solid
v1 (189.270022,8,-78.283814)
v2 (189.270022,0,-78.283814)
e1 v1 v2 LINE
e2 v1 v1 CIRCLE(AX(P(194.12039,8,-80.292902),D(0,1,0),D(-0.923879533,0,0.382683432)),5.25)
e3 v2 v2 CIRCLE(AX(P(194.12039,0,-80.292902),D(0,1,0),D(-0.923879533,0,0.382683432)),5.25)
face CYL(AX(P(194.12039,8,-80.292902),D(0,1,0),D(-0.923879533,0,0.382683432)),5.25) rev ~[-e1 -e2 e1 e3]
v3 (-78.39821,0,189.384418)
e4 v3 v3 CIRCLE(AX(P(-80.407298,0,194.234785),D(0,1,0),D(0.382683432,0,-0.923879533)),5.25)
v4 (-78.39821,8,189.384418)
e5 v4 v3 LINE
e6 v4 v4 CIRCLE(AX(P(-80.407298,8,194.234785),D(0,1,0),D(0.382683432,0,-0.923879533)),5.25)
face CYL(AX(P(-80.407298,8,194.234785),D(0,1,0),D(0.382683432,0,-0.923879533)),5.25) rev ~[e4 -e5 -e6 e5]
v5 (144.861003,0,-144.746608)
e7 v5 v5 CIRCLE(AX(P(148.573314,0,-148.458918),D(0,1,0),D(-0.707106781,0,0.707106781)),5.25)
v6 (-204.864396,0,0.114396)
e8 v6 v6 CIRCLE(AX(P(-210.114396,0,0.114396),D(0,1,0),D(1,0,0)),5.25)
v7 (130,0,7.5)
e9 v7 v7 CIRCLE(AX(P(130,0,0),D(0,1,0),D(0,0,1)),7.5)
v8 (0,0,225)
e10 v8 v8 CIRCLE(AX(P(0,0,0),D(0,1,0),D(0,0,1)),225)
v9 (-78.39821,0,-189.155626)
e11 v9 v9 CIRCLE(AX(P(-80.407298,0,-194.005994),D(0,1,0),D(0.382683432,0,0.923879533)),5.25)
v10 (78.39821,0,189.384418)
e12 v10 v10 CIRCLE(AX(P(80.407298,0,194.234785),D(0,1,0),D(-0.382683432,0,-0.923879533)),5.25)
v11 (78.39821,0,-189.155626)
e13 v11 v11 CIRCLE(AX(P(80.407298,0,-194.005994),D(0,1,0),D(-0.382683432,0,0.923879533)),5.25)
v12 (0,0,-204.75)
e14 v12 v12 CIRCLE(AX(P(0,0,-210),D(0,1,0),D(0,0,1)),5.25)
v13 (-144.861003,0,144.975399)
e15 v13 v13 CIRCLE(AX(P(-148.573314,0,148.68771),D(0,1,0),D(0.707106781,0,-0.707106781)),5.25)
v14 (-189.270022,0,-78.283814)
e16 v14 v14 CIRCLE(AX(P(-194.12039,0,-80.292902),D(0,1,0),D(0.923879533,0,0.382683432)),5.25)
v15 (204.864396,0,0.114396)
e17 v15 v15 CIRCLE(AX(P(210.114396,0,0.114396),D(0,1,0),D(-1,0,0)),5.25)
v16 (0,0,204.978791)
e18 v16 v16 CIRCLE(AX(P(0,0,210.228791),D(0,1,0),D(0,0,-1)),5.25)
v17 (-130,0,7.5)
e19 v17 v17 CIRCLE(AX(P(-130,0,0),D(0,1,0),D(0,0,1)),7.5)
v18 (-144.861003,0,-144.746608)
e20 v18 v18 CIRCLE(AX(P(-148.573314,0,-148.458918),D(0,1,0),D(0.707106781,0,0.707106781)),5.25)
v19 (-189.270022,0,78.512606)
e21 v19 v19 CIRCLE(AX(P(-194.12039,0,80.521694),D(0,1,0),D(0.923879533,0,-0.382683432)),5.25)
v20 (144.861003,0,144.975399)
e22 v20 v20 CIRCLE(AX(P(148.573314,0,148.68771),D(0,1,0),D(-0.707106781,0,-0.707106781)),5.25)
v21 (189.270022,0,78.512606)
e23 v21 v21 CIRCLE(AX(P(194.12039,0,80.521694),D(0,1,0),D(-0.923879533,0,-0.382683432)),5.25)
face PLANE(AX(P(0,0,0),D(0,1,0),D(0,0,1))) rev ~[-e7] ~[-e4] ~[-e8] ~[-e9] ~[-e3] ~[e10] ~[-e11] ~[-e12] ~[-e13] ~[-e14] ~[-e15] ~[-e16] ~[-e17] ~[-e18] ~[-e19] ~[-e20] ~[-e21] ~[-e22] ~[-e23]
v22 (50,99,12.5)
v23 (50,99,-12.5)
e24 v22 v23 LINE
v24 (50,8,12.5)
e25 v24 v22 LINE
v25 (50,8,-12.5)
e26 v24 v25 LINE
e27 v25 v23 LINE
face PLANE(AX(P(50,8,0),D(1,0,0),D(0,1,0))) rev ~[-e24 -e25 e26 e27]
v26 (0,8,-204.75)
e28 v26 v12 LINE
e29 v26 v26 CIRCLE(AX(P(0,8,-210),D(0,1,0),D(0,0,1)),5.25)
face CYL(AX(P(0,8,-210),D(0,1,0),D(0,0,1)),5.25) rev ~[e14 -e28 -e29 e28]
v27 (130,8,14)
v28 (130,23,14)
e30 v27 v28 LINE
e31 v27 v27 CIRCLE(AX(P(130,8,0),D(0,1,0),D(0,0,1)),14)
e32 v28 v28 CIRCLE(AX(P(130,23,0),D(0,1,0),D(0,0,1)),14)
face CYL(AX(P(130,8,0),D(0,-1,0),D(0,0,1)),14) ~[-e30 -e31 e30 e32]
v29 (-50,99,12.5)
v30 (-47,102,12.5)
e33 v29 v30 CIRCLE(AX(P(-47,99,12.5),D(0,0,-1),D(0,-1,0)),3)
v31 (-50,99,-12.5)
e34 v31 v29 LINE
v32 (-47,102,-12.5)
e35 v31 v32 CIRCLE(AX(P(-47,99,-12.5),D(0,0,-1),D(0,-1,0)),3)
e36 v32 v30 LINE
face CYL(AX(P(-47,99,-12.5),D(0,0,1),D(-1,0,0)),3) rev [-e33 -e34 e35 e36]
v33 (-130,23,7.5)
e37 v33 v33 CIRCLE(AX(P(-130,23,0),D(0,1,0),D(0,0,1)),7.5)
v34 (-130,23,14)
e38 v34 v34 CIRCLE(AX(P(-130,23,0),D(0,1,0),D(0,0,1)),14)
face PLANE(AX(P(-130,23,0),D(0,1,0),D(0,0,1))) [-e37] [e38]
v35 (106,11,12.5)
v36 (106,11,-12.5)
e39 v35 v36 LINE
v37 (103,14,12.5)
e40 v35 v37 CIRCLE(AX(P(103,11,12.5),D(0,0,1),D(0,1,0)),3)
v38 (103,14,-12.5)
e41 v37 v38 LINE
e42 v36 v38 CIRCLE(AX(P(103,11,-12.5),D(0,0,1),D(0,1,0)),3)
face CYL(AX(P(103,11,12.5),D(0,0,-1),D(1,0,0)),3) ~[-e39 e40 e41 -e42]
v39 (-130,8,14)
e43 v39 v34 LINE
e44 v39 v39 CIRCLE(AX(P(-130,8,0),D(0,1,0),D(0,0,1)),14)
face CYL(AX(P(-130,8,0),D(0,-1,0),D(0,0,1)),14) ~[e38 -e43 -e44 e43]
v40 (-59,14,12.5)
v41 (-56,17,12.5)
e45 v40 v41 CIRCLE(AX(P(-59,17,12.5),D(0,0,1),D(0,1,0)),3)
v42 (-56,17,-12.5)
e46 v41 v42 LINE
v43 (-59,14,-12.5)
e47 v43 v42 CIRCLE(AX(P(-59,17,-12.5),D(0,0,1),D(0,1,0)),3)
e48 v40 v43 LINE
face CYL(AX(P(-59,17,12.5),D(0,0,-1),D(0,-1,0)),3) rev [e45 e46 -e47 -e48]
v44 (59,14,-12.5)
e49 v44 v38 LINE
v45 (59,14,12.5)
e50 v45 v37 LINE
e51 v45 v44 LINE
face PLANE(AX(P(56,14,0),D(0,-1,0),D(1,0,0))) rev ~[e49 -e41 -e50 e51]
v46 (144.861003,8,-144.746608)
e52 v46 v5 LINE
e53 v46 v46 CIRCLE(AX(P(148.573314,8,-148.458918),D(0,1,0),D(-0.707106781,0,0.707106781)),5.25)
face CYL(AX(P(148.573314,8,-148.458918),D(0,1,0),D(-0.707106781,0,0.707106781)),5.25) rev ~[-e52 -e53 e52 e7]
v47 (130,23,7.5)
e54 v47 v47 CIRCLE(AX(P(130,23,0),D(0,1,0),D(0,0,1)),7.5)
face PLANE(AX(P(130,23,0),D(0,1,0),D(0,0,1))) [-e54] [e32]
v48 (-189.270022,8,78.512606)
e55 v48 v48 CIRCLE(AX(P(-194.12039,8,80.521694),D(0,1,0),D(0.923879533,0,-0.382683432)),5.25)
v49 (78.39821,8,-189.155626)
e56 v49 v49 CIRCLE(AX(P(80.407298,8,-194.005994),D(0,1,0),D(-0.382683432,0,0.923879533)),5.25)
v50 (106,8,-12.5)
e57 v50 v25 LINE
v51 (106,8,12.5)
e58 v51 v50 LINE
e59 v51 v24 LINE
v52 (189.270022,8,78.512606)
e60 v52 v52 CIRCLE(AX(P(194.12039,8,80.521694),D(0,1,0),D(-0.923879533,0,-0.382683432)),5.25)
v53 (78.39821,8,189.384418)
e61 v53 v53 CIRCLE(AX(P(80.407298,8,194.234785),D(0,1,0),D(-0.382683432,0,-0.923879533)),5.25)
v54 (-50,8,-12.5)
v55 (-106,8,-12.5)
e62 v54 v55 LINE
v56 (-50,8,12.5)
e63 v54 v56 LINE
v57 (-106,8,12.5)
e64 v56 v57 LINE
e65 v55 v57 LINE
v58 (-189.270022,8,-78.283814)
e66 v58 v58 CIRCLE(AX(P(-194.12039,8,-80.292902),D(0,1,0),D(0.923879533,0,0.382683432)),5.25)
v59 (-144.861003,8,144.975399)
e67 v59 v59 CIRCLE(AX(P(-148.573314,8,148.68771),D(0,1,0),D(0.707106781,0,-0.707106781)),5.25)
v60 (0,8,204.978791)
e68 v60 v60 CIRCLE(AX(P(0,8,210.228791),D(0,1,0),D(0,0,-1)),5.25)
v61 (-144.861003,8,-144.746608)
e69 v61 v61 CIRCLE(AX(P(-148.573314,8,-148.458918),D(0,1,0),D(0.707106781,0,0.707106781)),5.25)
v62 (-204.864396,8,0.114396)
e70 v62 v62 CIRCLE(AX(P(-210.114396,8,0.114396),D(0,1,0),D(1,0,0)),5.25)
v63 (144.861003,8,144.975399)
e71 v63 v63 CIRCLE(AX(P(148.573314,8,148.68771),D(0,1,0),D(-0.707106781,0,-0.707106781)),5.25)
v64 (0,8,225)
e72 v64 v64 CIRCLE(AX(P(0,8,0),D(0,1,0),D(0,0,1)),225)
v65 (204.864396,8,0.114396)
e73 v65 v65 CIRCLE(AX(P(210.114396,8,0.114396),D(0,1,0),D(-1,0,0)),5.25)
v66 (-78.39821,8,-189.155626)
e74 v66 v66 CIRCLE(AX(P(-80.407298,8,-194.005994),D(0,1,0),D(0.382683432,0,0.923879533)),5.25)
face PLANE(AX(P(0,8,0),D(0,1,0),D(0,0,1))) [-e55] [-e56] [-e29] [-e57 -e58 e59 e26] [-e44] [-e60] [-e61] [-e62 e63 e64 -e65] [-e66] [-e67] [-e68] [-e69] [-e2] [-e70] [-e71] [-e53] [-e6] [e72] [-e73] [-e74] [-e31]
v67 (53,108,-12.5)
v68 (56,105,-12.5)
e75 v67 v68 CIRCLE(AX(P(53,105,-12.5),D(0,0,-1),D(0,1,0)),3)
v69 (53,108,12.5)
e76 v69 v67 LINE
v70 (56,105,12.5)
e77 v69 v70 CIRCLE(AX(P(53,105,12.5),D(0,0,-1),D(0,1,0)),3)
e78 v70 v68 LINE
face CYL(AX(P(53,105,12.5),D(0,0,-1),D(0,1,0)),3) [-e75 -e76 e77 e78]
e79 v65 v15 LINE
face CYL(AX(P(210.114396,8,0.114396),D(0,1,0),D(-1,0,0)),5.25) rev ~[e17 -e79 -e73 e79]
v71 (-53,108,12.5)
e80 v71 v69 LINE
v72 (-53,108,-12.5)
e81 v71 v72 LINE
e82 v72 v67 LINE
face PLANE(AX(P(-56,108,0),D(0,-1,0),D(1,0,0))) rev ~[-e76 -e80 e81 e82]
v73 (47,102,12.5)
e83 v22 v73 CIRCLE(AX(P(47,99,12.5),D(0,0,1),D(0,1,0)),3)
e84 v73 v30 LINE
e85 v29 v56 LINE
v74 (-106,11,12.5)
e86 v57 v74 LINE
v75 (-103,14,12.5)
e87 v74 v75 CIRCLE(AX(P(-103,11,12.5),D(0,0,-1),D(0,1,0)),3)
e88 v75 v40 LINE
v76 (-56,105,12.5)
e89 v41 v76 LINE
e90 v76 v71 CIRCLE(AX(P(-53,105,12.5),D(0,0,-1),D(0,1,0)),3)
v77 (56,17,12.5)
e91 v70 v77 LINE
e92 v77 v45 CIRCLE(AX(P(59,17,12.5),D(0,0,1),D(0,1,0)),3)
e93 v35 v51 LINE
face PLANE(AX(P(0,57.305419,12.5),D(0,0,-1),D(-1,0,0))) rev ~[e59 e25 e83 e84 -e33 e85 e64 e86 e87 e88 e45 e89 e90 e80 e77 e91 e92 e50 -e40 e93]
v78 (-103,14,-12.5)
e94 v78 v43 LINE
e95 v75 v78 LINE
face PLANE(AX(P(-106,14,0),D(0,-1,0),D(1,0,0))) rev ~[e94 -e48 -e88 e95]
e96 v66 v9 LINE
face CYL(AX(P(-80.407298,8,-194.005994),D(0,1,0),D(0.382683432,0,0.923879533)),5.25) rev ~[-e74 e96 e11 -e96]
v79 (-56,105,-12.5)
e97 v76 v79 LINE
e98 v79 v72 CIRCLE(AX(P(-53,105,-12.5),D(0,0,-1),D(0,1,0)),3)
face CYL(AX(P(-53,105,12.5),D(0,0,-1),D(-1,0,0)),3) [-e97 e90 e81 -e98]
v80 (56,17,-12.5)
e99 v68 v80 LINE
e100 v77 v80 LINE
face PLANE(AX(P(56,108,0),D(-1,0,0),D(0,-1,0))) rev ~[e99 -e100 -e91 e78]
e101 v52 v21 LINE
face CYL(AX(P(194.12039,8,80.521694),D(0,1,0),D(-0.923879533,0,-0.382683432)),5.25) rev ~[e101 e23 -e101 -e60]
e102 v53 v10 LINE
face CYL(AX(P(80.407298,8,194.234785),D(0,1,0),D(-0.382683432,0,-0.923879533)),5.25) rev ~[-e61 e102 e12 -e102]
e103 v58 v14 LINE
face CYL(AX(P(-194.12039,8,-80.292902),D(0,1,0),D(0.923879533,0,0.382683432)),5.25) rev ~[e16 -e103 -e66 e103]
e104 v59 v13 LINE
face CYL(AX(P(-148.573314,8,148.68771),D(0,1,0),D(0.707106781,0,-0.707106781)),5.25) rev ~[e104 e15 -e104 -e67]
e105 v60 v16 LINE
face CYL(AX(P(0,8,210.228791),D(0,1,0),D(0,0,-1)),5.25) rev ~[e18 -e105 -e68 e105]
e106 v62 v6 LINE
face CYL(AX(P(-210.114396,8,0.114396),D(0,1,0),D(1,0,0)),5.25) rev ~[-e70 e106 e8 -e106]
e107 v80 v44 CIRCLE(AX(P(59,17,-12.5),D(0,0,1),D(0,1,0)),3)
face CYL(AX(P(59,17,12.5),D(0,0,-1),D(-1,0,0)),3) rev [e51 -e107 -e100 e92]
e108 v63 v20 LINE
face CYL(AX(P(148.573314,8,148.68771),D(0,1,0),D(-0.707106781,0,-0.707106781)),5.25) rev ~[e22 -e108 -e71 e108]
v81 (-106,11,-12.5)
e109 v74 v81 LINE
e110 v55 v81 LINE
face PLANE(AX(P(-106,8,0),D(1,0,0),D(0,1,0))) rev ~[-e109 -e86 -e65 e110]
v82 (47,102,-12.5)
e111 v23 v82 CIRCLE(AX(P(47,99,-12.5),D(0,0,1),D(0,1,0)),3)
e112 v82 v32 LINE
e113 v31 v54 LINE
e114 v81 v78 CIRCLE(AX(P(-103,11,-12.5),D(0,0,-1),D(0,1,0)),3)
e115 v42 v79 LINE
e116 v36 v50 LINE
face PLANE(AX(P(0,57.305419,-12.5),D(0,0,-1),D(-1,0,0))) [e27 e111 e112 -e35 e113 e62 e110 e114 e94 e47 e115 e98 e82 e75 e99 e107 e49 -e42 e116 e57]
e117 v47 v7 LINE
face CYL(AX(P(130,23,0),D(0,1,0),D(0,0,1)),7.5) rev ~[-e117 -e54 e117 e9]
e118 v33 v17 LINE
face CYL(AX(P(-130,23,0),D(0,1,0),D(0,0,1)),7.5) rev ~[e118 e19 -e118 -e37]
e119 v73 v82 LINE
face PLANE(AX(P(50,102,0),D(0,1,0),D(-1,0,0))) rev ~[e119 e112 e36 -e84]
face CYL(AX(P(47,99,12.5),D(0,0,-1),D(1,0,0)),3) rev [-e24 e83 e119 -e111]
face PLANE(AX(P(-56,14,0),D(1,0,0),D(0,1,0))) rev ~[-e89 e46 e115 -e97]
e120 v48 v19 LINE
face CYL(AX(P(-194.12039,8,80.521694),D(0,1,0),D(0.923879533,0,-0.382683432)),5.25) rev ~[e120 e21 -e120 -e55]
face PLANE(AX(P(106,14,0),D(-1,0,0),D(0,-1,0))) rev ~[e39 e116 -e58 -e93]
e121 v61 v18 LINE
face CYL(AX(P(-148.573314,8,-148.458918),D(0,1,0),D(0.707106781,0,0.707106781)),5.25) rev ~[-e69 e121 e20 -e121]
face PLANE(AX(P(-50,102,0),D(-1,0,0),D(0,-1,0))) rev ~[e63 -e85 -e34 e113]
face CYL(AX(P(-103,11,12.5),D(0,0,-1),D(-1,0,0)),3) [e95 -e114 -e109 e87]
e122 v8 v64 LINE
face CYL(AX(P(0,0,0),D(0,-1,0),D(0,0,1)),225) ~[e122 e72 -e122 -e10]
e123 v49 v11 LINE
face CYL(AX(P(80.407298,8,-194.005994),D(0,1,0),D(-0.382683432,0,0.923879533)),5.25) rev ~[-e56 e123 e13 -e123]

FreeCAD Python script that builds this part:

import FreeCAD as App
import Part
import Sketcher
Q = App.Units.Quantity


def edges_at(feature, points):
    """Names of the edges that pass closest to the given points."""
    edges = feature.Shape.Edges
    near = lambda p: min(range(len(edges)), key=lambda i: edges[i].distToShape(Part.Vertex(*p))[0])
    return sorted({f"Edge{near(p) + 1}" for p in points})

doc = App.newDocument("Part")
params = doc.addObject("Spreadsheet::Sheet", "Params")
for row, (alias, value) in enumerate([
    ("sketch1_diameter", "450 mm"),
    ("pad1_length", "8 mm"),
    ("sketch2_diameter", "10.5 mm"),
    ("sketch3_diameter", "28 mm"),
    ("pad2_length", "15 mm"),
    ("sketch4_diameter", "15 mm"),
    ("sketch5_diameter", "28 mm"),
    ("pad3_length", "15 mm"),
    ("sketch6_diameter", "15 mm"),
    ("sketch7_width", "56 mm"),
    ("sketch7_width2", "100 mm"),
    ("sketch7_width3", "50 mm"),
    ("sketch7_height", "6 mm"),
    ("sketch7_height2", "94 mm"),
    ("pad4_length", "25 mm"),
    ("fillet_radius", "3 mm"),
], start=1):
    params.set(f"A{row}", alias)
    params.set(f"B{row}", "=" + value)
    params.setAlias(f"B{row}", alias)

body = doc.addObject("PartDesign::Body", "Body")

# Sketch on XZ plane
sketch1 = body.newObject("Sketcher::SketchObject", "Sketch")
sketch1.AttachmentSupport = (doc.getObject("XZ_Plane"), [""])
sketch1.MapMode = "FlatFace"
sketch1.addGeometry(Part.Circle(App.Vector(0, 0, 0), App.Vector(0, 0, 1), 225), False)
sketch1.addConstraint([
    Sketcher.Constraint("Coincident", 0, 3, -1, 1),
    Sketcher.Constraint("Diameter", 0, Q("450 mm")),
])
sketch1.setExpression("Constraints[1]", "Params.sketch1_diameter")
pad1 = body.newObject("PartDesign::Pad", "Pad")
pad1.Profile = sketch1
pad1.setExpression("Length", "Params.pad1_length")
pad1.Reversed = True

# Sketch on XZ plane
sketch2 = body.newObject("Sketcher::SketchObject", "Sketch001")
sketch2.AttachmentSupport = (doc.getObject("XZ_Plane"), [""])
sketch2.MapMode = "FlatFace"
sketch2.AttachmentOffset = App.Placement(App.Vector(0, 0, -8), App.Rotation())
sketch2.addGeometry(Part.Circle(App.Vector(0, -210, 0), App.Vector(0, 0, 1), 5.25), False)
sketch2.addConstraint([
    Sketcher.Constraint("PointOnObject", 0, 3, -2),
    Sketcher.Constraint("Diameter", 0, Q("10.5 mm")),
    Sketcher.Constraint("DistanceY", 0, 3, -1, 1, Q("210 mm")),
])
sketch2.setExpression("Constraints[1]", "Params.sketch2_diameter")
pocket1 = body.newObject("PartDesign::Pocket", "Pocket")
pocket1.Profile = sketch2
pocket1.Type = "ThroughAll"
pocket1.Reversed = True
doc.recompute()

datumline = body.newObject("PartDesign::Line", "DatumLine")
datumline.Placement = App.Placement(App.Vector(0, 0, 0.114396), App.Rotation(App.Vector(0, 0, 1), App.Vector(0, 1, 0)))
polarpattern = body.newObject("PartDesign::PolarPattern", "PolarPattern")
polarpattern.Originals = [pocket1]
polarpattern.Axis = (datumline, [""])
polarpattern.Angle = 360
polarpattern.Occurrences = 16
body.Tip = polarpattern

# Sketch on XZ plane
sketch3 = body.newObject("Sketcher::SketchObject", "Sketch002")
sketch3.AttachmentSupport = (doc.getObject("XZ_Plane"), [""])
sketch3.MapMode = "FlatFace"
sketch3.AttachmentOffset = App.Placement(App.Vector(0, 0, -8), App.Rotation())
sketch3.addGeometry(Part.Circle(App.Vector(-130, 0, 0), App.Vector(0, 0, 1), 14), False)
sketch3.addConstraint([
    Sketcher.Constraint("PointOnObject", 0, 3, -1),
    Sketcher.Constraint("Diameter", 0, Q("28 mm")),
    Sketcher.Constraint("DistanceX", 0, 3, -1, 1, Q("130 mm")),
])
sketch3.setExpression("Constraints[1]", "Params.sketch3_diameter")
pad2 = body.newObject("PartDesign::Pad", "Pad001")
pad2.Profile = sketch3
pad2.setExpression("Length", "Params.pad2_length")
pad2.Reversed = True

# Sketch on XZ plane
sketch4 = body.newObject("Sketcher::SketchObject", "Sketch003")
sketch4.AttachmentSupport = (doc.getObject("XZ_Plane"), [""])
sketch4.MapMode = "FlatFace"
sketch4.AttachmentOffset = App.Placement(App.Vector(0, 0, -23), App.Rotation())
sketch4.addGeometry(Part.Circle(App.Vector(-130, 0, 0), App.Vector(0, 0, 1), 7.5), False)
sketch4.addConstraint([
    Sketcher.Constraint("PointOnObject", 0, 3, -1),
    Sketcher.Constraint("Diameter", 0, Q("15 mm")),
    Sketcher.Constraint("DistanceX", 0, 3, -1, 1, Q("130 mm")),
])
sketch4.setExpression("Constraints[1]", "Params.sketch4_diameter")
pocket2 = body.newObject("PartDesign::Pocket", "Pocket001")
pocket2.Profile = sketch4
pocket2.Type = "ThroughAll"
pocket2.Reversed = True

# Sketch on XZ plane
sketch5 = body.newObject("Sketcher::SketchObject", "Sketch004")
sketch5.AttachmentSupport = (doc.getObject("XZ_Plane"), [""])
sketch5.MapMode = "FlatFace"
sketch5.AttachmentOffset = App.Placement(App.Vector(0, 0, -8), App.Rotation())
sketch5.addGeometry(Part.Circle(App.Vector(130, 0, 0), App.Vector(0, 0, 1), 14), False)
sketch5.addConstraint([
    Sketcher.Constraint("PointOnObject", 0, 3, -1),
    Sketcher.Constraint("Diameter", 0, Q("28 mm")),
    Sketcher.Constraint("DistanceX", -1, 1, 0, 3, Q("130 mm")),
])
sketch5.setExpression("Constraints[1]", "Params.sketch5_diameter")
pad3 = body.newObject("PartDesign::Pad", "Pad002")
pad3.Profile = sketch5
pad3.setExpression("Length", "Params.pad3_length")
pad3.Reversed = True

# Sketch on XZ plane
sketch6 = body.newObject("Sketcher::SketchObject", "Sketch005")
sketch6.AttachmentSupport = (doc.getObject("XZ_Plane"), [""])
sketch6.MapMode = "FlatFace"
sketch6.AttachmentOffset = App.Placement(App.Vector(0, 0, -23), App.Rotation())
sketch6.addGeometry(Part.Circle(App.Vector(130, 0, 0), App.Vector(0, 0, 1), 7.5), False)
sketch6.addConstraint([
    Sketcher.Constraint("PointOnObject", 0, 3, -1),
    Sketcher.Constraint("Diameter", 0, Q("15 mm")),
    Sketcher.Constraint("DistanceX", -1, 1, 0, 3, Q("130 mm")),
])
sketch6.setExpression("Constraints[1]", "Params.sketch6_diameter")
pocket3 = body.newObject("PartDesign::Pocket", "Pocket002")
pocket3.Profile = sketch6
pocket3.Type = "ThroughAll"
pocket3.Reversed = True

# Sketch on XY plane
sketch7 = body.newObject("Sketcher::SketchObject", "Sketch006")
sketch7.AttachmentSupport = (doc.getObject("XY_Plane"), [""])
sketch7.MapMode = "FlatFace"
sketch7.addGeometry([
    Part.LineSegment(App.Vector(-106, 14, 0), App.Vector(-106, 8, 0)),  # 0
    Part.LineSegment(App.Vector(-106, 8, 0), App.Vector(-50, 8, 0)),  # 1
    Part.LineSegment(App.Vector(-50, 8, 0), App.Vector(-50, 102, 0)),  # 2
    Part.LineSegment(App.Vector(-50, 102, 0), App.Vector(50, 102, 0)),  # 3
    Part.LineSegment(App.Vector(50, 102, 0), App.Vector(50, 8, 0)),  # 4
    Part.LineSegment(App.Vector(50, 8, 0), App.Vector(106, 8, 0)),  # 5
    Part.LineSegment(App.Vector(106, 8, 0), App.Vector(106, 14, 0)),  # 6
    Part.LineSegment(App.Vector(106, 14, 0), App.Vector(56, 14, 0)),  # 7
    Part.LineSegment(App.Vector(56, 14, 0), App.Vector(56, 108, 0)),  # 8
    Part.LineSegment(App.Vector(56, 108, 0), App.Vector(-56, 108, 0)),  # 9
    Part.LineSegment(App.Vector(-56, 108, 0), App.Vector(-56, 14, 0)),  # 10
    Part.LineSegment(App.Vector(-56, 14, 0), App.Vector(-106, 14, 0)),  # 11
], False)
sketch7.addConstraint([
    Sketcher.Constraint("Coincident", 0, 2, 1, 1),
    Sketcher.Constraint("Coincident", 1, 2, 2, 1),
    Sketcher.Constraint("Coincident", 2, 2, 3, 1),
    Sketcher.Constraint("Coincident", 3, 2, 4, 1),
    Sketcher.Constraint("Coincident", 4, 2, 5, 1),
    Sketcher.Constraint("Coincident", 5, 2, 6, 1),
    Sketcher.Constraint("Coincident", 6, 2, 7, 1),
    Sketcher.Constraint("Coincident", 7, 2, 8, 1),
    Sketcher.Constraint("Coincident", 8, 2, 9, 1),
    Sketcher.Constraint("Coincident", 9, 2, 10, 1),
    Sketcher.Constraint("Coincident", 10, 2, 11, 1),
    Sketcher.Constraint("Coincident", 11, 2, 0, 1),
    Sketcher.Constraint("Vertical", 0),
    Sketcher.Constraint("Horizontal", 1),
    Sketcher.Constraint("Vertical", 2),
    Sketcher.Constraint("Horizontal", 3),
    Sketcher.Constraint("Vertical", 4),
    Sketcher.Constraint("Horizontal", 5),
    Sketcher.Constraint("Vertical", 6),
    Sketcher.Constraint("Horizontal", 7),
    Sketcher.Constraint("Vertical", 8),
    Sketcher.Constraint("Horizontal", 9),
    Sketcher.Constraint("Vertical", 10),
    Sketcher.Constraint("Horizontal", 11),
    Sketcher.Constraint("Symmetric", 1, 2, 4, 2, -2),
    Sketcher.Constraint("Symmetric", 7, 2, 10, 2, -2),
    Sketcher.Constraint("Equal", 1, 5),
    Sketcher.Constraint("Equal", 4, 8),
    Sketcher.Constraint("DistanceX", 1, 1, 1, 2, Q("56 mm")),
    Sketcher.Constraint("DistanceX", 3, 1, 3, 2, Q("100 mm")),
    Sketcher.Constraint("DistanceX", 7, 2, 7, 1, Q("50 mm")),
    Sketcher.Constraint("DistanceY", 0, 2, 0, 1, Q("6 mm")),
    Sketcher.Constraint("DistanceY", 2, 1, 2, 2, Q("94 mm")),
    Sketcher.Constraint("DistanceY", -1, 1, 0, 2, Q("8 mm")),
])
sketch7.setExpression("Constraints[28]", "Params.sketch7_width")
sketch7.setExpression("Constraints[29]", "Params.sketch7_width2")
sketch7.setExpression("Constraints[30]", "Params.sketch7_width3")
sketch7.setExpression("Constraints[31]", "Params.sketch7_height")
sketch7.setExpression("Constraints[32]", "Params.sketch7_height2")
pad4 = body.newObject("PartDesign::Pad", "Pad003")
pad4.Profile = sketch7
pad4.setExpression("Length", "Params.pad4_length")
pad4.Midplane = True
doc.recompute()

fillet = body.newObject("PartDesign::Fillet", "Fillet")
fillet.Base = (pad4, edges_at(pad4, [
    (-50, 102, 0),
    (50, 102, 0),
    (106, 14, 0),
    (56, 14, 0),
    (56, 108, 0),
    (-56, 108, 0),
    (-56, 14, 0),
    (-106, 14, 0),
]))
fillet.setExpression("Radius", "Params.fillet_radius")

doc.recompute()
